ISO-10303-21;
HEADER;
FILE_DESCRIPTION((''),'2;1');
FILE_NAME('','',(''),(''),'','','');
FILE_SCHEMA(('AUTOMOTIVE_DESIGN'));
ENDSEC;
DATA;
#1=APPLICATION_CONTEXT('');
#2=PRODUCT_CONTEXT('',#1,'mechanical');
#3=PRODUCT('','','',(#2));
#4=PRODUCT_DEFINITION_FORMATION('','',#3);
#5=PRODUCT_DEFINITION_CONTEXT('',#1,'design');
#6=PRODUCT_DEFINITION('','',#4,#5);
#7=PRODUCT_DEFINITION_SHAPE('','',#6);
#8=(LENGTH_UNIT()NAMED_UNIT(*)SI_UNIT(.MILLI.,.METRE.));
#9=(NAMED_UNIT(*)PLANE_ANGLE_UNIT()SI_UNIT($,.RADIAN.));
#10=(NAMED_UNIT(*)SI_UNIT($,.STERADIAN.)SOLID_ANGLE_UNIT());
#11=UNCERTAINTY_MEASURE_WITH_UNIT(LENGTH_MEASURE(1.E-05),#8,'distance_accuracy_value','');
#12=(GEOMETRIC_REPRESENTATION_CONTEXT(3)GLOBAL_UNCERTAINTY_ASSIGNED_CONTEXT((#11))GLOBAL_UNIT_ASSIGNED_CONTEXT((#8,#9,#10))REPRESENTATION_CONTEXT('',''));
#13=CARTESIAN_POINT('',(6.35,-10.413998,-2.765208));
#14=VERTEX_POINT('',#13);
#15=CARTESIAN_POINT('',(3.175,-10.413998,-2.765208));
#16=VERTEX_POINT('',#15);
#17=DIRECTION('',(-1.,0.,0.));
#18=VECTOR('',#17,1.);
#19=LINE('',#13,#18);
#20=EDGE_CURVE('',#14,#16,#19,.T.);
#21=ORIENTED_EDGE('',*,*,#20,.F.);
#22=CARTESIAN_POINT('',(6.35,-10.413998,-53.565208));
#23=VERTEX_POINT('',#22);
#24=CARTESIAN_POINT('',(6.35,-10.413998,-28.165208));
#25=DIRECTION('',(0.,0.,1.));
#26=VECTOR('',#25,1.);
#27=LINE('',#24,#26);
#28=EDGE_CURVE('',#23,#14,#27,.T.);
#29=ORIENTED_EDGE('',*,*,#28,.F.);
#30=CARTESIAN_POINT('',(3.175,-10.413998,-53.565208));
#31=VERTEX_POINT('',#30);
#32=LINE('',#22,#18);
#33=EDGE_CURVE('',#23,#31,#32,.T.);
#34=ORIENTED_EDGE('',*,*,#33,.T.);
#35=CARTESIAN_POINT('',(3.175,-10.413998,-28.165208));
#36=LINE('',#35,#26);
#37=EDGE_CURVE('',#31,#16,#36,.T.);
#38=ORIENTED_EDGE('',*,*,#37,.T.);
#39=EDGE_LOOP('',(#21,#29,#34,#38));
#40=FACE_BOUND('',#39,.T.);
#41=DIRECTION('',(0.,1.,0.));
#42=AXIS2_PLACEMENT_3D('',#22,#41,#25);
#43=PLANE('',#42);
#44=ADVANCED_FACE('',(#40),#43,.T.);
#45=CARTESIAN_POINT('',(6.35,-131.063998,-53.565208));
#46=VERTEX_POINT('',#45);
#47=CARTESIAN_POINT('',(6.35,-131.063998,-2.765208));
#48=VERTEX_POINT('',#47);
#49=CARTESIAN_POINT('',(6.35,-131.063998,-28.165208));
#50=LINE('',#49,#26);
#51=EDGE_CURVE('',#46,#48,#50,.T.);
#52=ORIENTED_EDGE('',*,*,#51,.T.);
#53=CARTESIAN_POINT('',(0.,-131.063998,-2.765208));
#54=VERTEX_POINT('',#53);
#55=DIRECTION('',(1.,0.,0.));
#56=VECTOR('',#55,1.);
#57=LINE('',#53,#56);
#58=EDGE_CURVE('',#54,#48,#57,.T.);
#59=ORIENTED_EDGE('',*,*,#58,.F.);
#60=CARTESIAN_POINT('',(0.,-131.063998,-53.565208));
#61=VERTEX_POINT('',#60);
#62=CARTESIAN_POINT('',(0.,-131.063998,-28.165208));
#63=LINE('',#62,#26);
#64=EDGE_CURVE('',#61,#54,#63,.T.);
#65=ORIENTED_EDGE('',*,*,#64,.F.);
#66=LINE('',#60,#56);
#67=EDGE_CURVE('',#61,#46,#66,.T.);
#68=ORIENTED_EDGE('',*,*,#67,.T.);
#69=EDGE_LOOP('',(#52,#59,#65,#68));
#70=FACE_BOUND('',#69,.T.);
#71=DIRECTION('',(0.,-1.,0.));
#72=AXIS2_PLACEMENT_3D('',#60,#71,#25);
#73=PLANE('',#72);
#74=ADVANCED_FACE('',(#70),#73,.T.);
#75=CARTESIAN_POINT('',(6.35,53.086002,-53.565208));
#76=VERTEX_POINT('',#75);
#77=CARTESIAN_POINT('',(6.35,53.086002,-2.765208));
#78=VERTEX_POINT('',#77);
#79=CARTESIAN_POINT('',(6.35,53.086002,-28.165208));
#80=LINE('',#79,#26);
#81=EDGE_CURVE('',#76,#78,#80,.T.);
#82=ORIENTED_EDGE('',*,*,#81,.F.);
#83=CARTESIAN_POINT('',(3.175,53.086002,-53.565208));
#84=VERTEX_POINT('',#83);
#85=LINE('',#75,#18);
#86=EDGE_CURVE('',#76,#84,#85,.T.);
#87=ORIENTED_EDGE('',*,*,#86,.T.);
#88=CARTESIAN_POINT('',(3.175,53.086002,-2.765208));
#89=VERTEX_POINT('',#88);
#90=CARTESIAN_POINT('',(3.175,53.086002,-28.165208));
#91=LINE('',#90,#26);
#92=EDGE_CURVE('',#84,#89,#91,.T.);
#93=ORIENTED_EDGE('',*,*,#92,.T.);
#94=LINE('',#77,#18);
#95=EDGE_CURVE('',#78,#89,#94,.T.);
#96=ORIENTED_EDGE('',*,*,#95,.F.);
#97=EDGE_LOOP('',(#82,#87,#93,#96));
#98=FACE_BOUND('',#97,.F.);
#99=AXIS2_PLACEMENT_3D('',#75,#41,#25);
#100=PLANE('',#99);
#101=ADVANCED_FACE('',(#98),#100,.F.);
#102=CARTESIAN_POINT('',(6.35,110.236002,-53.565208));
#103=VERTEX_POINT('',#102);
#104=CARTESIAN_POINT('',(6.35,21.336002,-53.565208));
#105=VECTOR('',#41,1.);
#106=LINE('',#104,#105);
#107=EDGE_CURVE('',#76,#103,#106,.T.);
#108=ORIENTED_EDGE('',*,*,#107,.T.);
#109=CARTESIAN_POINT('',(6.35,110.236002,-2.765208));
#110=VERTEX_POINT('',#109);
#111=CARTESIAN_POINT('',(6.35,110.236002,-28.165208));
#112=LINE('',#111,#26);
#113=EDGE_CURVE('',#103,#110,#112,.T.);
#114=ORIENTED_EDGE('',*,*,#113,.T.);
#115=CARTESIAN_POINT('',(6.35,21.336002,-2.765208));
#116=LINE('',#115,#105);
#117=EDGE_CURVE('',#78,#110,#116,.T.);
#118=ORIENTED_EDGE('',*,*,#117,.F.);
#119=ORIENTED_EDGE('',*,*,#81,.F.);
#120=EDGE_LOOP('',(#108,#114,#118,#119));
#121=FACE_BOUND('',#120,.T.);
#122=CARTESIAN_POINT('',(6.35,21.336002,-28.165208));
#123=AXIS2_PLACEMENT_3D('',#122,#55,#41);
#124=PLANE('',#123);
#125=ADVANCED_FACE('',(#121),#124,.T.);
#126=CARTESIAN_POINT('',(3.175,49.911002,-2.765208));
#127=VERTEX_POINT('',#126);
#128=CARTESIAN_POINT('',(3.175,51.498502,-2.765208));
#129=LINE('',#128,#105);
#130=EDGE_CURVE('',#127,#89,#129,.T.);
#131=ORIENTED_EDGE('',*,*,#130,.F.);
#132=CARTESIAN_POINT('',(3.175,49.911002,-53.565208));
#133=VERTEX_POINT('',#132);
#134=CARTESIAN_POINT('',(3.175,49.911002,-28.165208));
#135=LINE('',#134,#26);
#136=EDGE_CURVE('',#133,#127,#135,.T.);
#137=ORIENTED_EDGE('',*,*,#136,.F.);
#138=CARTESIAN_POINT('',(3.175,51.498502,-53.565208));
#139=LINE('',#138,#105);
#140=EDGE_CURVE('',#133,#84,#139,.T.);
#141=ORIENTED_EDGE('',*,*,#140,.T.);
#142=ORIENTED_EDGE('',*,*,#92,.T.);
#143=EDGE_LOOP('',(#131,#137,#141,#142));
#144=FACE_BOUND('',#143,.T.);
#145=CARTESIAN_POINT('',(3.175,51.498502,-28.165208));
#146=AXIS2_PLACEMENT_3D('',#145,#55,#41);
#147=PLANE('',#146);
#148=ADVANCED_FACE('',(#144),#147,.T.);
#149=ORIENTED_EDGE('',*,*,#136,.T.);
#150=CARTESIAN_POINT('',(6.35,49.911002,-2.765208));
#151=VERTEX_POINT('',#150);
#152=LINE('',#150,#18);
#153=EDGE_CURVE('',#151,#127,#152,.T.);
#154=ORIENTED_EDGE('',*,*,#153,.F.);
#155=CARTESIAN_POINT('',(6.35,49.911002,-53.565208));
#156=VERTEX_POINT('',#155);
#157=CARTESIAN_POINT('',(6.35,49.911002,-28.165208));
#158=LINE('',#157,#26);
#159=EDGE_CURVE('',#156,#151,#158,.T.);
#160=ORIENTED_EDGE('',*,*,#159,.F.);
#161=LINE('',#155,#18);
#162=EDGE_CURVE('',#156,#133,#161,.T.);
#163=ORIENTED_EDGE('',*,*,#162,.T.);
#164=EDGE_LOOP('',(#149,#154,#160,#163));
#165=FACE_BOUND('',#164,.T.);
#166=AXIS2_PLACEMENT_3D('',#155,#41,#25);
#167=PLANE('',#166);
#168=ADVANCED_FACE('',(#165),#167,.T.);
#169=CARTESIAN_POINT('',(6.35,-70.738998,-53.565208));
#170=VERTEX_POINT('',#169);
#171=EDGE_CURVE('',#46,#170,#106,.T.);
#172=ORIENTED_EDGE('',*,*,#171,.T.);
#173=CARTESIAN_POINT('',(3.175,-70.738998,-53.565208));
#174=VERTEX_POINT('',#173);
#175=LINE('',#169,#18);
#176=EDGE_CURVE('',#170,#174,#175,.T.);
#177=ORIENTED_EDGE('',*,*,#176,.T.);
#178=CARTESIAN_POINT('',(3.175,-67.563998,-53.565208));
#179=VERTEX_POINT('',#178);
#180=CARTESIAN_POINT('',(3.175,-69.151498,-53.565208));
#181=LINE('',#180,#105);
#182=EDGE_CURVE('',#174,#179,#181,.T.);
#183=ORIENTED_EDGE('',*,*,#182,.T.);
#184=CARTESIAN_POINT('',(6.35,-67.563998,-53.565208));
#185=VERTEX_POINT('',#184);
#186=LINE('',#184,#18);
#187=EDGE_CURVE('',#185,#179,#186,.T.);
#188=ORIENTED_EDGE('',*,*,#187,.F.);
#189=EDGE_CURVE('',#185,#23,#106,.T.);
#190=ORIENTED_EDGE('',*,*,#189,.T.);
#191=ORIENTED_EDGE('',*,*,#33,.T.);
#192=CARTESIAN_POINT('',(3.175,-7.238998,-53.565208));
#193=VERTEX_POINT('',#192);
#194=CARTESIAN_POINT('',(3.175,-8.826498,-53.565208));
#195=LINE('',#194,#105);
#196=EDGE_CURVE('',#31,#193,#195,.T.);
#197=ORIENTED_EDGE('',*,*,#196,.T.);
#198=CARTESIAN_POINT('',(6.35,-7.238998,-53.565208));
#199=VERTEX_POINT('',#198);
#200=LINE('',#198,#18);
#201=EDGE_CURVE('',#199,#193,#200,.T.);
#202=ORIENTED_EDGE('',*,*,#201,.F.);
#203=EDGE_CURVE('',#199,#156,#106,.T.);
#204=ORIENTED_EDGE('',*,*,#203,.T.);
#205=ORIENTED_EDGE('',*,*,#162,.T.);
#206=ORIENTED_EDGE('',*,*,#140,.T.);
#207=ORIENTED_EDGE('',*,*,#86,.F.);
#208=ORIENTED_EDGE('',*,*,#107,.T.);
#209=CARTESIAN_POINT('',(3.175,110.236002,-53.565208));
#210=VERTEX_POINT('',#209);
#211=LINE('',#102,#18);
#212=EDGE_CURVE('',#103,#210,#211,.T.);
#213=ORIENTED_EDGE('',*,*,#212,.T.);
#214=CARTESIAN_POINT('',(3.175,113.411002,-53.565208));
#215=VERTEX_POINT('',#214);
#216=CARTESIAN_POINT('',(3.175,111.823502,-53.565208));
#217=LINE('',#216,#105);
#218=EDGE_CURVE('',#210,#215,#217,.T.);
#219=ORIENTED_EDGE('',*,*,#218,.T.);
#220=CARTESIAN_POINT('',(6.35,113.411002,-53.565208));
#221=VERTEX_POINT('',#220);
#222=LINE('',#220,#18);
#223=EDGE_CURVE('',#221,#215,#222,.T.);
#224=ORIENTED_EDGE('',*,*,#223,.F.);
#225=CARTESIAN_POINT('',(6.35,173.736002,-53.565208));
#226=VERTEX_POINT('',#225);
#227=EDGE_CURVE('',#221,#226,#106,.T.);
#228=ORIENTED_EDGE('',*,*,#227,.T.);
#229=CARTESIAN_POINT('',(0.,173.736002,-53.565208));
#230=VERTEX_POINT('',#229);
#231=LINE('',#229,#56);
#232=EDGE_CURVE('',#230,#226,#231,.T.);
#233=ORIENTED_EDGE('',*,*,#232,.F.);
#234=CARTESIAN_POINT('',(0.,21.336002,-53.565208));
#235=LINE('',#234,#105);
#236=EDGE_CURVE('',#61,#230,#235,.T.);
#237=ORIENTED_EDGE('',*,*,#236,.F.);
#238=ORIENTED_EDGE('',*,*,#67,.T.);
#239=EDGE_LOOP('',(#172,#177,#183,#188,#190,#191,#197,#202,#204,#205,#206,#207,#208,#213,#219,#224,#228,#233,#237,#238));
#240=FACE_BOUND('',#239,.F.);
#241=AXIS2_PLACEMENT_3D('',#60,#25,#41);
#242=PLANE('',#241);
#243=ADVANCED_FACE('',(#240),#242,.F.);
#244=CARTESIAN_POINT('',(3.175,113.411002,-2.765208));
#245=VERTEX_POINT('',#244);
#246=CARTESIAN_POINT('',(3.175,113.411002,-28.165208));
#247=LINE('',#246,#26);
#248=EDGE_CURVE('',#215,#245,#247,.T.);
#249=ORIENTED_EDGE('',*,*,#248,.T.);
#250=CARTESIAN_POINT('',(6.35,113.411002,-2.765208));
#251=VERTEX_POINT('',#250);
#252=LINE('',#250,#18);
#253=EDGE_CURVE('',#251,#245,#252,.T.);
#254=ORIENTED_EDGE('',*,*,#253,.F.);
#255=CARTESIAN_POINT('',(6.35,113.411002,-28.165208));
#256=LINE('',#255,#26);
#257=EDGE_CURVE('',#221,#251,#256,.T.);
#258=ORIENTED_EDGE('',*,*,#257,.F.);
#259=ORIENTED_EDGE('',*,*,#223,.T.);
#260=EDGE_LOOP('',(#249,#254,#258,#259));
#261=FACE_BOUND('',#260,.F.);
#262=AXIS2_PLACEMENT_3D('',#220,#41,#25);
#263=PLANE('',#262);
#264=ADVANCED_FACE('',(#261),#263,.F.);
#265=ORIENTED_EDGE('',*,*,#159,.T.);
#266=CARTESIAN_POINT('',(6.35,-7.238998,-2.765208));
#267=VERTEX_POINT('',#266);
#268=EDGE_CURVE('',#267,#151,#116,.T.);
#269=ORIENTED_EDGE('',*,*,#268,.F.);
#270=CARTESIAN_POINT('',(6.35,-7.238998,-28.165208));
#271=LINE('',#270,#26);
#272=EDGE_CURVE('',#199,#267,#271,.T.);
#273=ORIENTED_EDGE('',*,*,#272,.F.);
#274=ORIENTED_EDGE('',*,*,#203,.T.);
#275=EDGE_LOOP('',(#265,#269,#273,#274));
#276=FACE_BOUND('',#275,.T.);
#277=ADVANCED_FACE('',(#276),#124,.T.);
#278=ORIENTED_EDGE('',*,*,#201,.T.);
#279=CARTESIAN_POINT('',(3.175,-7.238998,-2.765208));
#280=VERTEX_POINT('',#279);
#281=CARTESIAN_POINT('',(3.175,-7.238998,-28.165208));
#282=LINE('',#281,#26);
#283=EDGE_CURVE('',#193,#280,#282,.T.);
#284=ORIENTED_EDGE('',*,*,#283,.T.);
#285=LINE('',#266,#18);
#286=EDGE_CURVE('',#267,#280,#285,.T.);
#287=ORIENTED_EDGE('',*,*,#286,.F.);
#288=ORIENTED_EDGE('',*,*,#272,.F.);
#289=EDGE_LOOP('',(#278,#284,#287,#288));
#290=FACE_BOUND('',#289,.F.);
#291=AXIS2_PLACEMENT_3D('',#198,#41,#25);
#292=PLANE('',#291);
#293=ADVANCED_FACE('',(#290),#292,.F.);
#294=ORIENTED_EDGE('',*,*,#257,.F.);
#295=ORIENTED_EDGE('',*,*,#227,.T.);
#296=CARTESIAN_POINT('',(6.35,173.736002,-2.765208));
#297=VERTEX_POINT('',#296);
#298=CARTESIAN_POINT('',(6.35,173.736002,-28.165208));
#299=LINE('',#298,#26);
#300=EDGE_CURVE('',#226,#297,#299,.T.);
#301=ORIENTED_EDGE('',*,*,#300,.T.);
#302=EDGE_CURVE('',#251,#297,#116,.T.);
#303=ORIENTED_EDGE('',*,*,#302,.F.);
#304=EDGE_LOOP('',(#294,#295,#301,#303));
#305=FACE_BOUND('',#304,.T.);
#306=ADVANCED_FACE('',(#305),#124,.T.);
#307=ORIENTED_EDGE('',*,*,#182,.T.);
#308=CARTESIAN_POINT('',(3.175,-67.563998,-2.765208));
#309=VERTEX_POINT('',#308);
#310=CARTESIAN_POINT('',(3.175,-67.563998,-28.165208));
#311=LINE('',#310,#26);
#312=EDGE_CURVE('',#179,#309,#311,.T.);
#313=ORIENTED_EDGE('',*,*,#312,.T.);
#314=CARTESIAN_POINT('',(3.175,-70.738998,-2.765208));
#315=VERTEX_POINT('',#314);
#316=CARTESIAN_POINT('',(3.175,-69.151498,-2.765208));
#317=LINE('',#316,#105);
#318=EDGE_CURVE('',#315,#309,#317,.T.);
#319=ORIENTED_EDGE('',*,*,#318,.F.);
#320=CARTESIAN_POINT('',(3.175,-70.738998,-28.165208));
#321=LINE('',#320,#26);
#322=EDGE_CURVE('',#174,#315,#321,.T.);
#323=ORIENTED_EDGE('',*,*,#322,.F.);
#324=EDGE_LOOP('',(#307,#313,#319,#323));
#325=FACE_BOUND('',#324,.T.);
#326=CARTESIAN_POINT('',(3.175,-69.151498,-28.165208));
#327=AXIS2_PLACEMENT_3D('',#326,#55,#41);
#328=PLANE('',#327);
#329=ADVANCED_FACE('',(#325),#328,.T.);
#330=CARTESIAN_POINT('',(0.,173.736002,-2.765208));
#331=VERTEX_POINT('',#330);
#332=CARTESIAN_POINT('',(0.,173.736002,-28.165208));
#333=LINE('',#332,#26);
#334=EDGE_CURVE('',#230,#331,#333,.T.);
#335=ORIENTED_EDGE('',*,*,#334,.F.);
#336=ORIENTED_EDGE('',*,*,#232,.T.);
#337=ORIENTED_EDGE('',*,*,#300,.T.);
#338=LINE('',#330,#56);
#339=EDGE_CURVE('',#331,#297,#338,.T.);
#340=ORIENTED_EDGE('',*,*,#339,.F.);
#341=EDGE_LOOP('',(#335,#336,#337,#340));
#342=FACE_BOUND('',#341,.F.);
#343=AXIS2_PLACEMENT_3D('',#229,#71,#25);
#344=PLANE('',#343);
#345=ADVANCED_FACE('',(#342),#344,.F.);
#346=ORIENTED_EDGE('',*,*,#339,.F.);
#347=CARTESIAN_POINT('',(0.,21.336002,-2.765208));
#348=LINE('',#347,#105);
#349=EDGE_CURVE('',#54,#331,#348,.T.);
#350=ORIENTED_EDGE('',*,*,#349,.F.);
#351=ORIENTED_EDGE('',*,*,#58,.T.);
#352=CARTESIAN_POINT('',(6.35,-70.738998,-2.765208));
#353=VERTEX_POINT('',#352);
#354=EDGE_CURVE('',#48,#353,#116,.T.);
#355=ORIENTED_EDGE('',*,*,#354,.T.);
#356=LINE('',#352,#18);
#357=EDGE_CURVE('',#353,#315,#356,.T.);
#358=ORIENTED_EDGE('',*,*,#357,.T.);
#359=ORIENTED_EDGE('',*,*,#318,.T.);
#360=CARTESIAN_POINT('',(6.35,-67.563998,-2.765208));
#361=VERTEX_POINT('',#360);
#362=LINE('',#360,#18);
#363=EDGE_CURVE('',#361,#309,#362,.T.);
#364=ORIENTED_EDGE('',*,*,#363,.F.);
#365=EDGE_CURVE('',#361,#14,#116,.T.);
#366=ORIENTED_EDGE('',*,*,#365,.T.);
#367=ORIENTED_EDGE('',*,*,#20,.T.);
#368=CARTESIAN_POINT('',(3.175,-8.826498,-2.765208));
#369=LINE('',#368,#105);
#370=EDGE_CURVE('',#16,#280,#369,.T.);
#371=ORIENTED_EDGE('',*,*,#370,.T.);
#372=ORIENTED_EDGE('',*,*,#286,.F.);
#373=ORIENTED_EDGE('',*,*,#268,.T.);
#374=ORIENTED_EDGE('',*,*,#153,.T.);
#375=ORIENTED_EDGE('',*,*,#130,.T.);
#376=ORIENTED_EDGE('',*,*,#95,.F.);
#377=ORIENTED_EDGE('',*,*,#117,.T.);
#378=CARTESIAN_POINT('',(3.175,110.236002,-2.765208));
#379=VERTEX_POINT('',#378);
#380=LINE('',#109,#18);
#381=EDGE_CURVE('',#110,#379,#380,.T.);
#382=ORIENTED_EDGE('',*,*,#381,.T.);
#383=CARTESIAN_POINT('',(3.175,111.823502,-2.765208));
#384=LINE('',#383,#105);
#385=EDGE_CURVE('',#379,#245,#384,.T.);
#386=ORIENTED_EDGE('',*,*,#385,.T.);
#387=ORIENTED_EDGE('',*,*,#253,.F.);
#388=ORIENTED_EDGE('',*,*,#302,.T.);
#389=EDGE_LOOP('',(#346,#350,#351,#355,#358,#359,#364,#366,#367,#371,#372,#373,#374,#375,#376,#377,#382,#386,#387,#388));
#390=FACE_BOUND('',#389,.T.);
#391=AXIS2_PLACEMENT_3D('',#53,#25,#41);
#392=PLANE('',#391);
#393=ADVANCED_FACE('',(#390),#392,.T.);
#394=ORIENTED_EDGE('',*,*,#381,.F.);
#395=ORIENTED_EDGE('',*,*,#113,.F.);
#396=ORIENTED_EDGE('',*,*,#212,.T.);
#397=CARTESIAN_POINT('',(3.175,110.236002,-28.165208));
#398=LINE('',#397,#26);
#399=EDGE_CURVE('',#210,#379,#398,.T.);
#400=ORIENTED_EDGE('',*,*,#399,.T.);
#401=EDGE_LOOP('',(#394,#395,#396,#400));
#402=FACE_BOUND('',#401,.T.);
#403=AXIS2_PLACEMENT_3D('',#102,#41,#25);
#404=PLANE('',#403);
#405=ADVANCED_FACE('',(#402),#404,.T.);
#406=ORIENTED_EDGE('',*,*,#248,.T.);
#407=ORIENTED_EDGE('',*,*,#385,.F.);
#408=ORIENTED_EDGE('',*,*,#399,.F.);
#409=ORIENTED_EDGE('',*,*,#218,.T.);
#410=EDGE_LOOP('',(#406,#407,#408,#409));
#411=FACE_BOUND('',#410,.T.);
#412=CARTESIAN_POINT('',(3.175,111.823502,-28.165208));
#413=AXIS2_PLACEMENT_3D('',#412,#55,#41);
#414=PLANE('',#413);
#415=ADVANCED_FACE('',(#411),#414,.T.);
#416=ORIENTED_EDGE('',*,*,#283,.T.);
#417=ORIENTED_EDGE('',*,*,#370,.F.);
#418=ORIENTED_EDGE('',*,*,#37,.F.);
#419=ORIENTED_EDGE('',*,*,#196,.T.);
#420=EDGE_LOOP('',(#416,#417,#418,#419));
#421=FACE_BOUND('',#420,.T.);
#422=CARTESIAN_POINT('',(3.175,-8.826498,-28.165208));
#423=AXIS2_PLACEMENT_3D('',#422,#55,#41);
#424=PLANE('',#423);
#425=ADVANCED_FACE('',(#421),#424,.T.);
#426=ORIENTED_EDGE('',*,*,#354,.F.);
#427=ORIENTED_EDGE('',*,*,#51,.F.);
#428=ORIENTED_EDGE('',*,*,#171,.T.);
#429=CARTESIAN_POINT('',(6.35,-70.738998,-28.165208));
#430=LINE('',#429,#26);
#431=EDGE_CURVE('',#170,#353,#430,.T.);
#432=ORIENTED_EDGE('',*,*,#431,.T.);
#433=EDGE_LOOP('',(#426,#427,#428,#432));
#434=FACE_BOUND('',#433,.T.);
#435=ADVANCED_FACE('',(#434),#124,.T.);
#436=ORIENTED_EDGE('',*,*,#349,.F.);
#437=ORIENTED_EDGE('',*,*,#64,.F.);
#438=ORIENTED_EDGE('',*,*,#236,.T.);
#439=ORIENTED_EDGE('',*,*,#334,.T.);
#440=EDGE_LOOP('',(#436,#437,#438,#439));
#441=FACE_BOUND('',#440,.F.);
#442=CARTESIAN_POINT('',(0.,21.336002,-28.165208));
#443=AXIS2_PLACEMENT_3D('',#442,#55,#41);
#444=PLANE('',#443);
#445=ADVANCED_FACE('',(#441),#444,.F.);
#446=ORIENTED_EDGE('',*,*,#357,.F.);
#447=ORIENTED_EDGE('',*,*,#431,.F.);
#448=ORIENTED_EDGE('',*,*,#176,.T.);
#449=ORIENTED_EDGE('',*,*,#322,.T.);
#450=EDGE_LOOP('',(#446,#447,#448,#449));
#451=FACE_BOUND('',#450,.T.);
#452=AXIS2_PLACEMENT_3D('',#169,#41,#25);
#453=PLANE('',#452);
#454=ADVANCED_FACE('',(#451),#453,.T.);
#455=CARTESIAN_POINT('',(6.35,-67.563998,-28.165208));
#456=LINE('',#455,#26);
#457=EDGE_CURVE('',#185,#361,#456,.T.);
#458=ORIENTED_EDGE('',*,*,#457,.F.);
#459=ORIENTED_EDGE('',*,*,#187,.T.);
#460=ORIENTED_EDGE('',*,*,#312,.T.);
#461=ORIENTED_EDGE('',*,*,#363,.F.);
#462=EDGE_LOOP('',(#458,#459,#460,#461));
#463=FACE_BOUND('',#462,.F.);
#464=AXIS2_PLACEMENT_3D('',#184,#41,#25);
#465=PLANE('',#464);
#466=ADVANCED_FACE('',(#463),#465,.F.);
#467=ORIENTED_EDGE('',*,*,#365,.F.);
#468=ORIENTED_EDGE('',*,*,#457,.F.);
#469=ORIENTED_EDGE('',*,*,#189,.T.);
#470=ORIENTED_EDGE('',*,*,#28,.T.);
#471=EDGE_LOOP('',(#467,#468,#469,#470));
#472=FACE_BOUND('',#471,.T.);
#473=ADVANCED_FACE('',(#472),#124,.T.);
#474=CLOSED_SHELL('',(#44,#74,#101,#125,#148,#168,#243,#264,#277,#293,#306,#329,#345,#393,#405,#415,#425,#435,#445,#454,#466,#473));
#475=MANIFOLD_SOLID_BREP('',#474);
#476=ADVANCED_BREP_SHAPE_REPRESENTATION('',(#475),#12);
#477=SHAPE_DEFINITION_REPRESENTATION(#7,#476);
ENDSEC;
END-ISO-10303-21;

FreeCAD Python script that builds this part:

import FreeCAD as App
import Part
import Sketcher

V = App.Vector
Q = App.Units.Quantity


def add_polygon(sketch, points):
    """Adds a closed chain of lines whose ends are joined by coincident constraints."""
    first, n = sketch.GeometryCount, len(points)
    for a, b in zip(points, points[1:] + points[:1]):
        sketch.addGeometry(Part.LineSegment(App.Vector(*a, 0), App.Vector(*b, 0)), False)
    for i in range(n):
        sketch.addConstraint(Sketcher.Constraint("Coincident", first + i, 2, first + (i + 1) % n, 1))

doc = App.newDocument("Part")
body = doc.addObject("PartDesign::Body", "Body")

sketch1 = body.newObject("Sketcher::SketchObject", "Sketch")
sketch1.AttachmentSupport = (doc.getObject("YZ_Plane"), [""])
sketch1.MapMode = "FlatFace"
add_polygon(sketch1, [(-131.063998, -2.765208), (-131.063998, -53.565208), (173.736002, -53.565208), (173.736002, -2.765208)])
sketch1.addConstraint(Sketcher.Constraint("Vertical", 0))
sketch1.addConstraint(Sketcher.Constraint("Horizontal", 1))
sketch1.addConstraint(Sketcher.Constraint("Vertical", 2))
sketch1.addConstraint(Sketcher.Constraint("Horizontal", 3))
sketch1.addConstraint(Sketcher.Constraint("DistanceX", 1, 1, 1, 2, Q("12 in")))
sketch1.addConstraint(Sketcher.Constraint("DistanceY", 0, 2, 0, 1, Q("2 in")))
sketch1.addConstraint(Sketcher.Constraint("DistanceX", 0, 2, -1, 1, Q("5.1599999 in")))
sketch1.addConstraint(Sketcher.Constraint("DistanceY", 0, 2, -1, 1, Q("53.565208 mm")))
pad1 = body.newObject("PartDesign::Pad", "Pad")
pad1.Profile = sketch1
pad1.Length = Q("0.25 in")

sketch2 = body.newObject("Sketcher::SketchObject", "Sketch001")
sketch2.AttachmentSupport = (doc.getObject("YZ_Plane"), [""])
sketch2.MapMode = "FlatFace"
sketch2.AttachmentOffset = App.Placement(V(0, 0, 0.25 * 25.4), App.Rotation())
add_polygon(sketch2, [(-70.738998, -2.765208), (-70.738998, -53.565208), (-67.563998, -53.565208), (-67.563998, -2.765208)])
add_polygon(sketch2, [(-10.413998, -2.765208), (-10.413998, -53.565208), (-7.238998, -53.565208), (-7.238998, -2.765208)])
add_polygon(sketch2, [(49.911002, -2.765208), (49.911002, -53.565208), (53.086002, -53.565208), (53.086002, -2.765208)])
add_polygon(sketch2, [(110.236002, -2.765208), (110.236002, -53.565208), (113.411002, -53.565208), (113.411002, -2.765208)])
sketch2.addConstraint(Sketcher.Constraint("Vertical", 0))
sketch2.addConstraint(Sketcher.Constraint("Horizontal", 1))
sketch2.addConstraint(Sketcher.Constraint("Vertical", 2))
sketch2.addConstraint(Sketcher.Constraint("Horizontal", 3))
sketch2.addConstraint(Sketcher.Constraint("Vertical", 4))
sketch2.addConstraint(Sketcher.Constraint("Horizontal", 5))
sketch2.addConstraint(Sketcher.Constraint("Vertical", 6))
sketch2.addConstraint(Sketcher.Constraint("Horizontal", 7))
sketch2.addConstraint(Sketcher.Constraint("Vertical", 8))
sketch2.addConstraint(Sketcher.Constraint("Horizontal", 9))
sketch2.addConstraint(Sketcher.Constraint("Vertical", 10))
sketch2.addConstraint(Sketcher.Constraint("Horizontal", 11))
sketch2.addConstraint(Sketcher.Constraint("Vertical", 12))
sketch2.addConstraint(Sketcher.Constraint("Horizontal", 13))
sketch2.addConstraint(Sketcher.Constraint("Vertical", 14))
sketch2.addConstraint(Sketcher.Constraint("Horizontal", 15))
sketch2.addConstraint(Sketcher.Constraint("Horizontal", 1, 2, 4, 2))
sketch2.addConstraint(Sketcher.Constraint("Horizontal", 3, 2, 6, 2))
sketch2.addConstraint(Sketcher.Constraint("Horizontal", 5, 2, 8, 2))
sketch2.addConstraint(Sketcher.Constraint("Horizontal", 7, 2, 10, 2))
sketch2.addConstraint(Sketcher.Constraint("Horizontal", 9, 2, 12, 2))
sketch2.addConstraint(Sketcher.Constraint("Horizontal", 11, 2, 14, 2))
sketch2.addConstraint(Sketcher.Constraint("Equal", 3, 5))
sketch2.addConstraint(Sketcher.Constraint("Equal", 7, 9))
sketch2.addConstraint(Sketcher.Constraint("Equal", 11, 13))
sketch2.addConstraint(Sketcher.Constraint("DistanceY", 0, 2, 0, 1, Q("2 in")))
sketch2.addConstraint(Sketcher.Constraint("DistanceX", 0, 2, 5, 2, Q("2.5 in")))
sketch2.addConstraint(Sketcher.Constraint("DistanceX", 4, 2, 9, 2, Q("2.5 in")))
sketch2.addConstraint(Sketcher.Constraint("DistanceX", 8, 2, 13, 2, Q("2.5 in")))
sketch2.addConstraint(Sketcher.Constraint("DistanceX", 1, 1, 1, 2, Q("0.125 in")))
sketch2.addConstraint(Sketcher.Constraint("DistanceX", 1, 2, -1, 1, Q("2.6599999 in")))
sketch2.addConstraint(Sketcher.Constraint("DistanceY", 0, 2, -1, 1, Q("53.565208 mm")))
pocket1 = body.newObject("PartDesign::Pocket", "Pocket")
pocket1.Profile = sketch2
pocket1.Length = Q("0.125 in")

doc.recompute()
